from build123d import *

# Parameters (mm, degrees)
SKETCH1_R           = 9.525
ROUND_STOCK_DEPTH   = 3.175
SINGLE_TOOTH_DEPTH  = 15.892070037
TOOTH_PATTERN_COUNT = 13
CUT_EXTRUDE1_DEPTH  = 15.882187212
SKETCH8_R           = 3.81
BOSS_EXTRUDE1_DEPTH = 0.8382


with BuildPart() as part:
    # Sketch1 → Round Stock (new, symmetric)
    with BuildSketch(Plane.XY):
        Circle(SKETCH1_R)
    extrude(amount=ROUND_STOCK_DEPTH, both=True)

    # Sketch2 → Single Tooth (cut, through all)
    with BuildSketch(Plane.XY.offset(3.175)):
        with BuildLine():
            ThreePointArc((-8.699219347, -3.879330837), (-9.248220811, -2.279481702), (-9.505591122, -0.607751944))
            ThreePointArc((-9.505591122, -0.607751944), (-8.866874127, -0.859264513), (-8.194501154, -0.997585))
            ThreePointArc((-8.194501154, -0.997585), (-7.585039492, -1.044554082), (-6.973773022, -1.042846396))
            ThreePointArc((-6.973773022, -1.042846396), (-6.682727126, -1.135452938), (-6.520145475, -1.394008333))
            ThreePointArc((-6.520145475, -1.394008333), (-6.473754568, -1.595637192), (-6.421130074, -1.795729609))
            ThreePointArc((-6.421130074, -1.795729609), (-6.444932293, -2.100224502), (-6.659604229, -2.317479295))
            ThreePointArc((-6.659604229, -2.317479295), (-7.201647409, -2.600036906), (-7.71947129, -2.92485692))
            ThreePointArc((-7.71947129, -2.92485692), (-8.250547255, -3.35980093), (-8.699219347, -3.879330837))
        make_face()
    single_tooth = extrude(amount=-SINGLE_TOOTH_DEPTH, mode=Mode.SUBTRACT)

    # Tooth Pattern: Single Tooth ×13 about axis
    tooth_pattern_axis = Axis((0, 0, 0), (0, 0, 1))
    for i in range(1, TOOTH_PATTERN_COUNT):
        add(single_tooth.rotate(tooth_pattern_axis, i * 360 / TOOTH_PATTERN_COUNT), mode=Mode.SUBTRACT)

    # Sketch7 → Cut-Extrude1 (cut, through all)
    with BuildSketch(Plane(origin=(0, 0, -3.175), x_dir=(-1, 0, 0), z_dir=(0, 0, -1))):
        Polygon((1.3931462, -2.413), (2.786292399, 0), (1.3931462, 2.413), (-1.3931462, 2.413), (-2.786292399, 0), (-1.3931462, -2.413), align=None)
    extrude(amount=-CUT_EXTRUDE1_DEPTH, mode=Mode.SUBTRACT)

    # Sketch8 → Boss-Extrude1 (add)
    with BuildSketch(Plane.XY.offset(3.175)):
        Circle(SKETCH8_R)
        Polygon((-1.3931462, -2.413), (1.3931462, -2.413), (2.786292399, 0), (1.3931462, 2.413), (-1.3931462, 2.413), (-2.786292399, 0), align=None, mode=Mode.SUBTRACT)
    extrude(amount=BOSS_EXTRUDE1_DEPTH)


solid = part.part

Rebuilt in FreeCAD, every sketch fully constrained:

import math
import FreeCAD as App
import Part
import Sketcher
from FreeCAD import Vector
Q = App.Units.Quantity

doc = App.newDocument("Part")
body = doc.addObject("PartDesign::Body", "Body")

# Sketch on XY plane
sketch1 = body.newObject("Sketcher::SketchObject", "Sketch")
sketch1.AttachmentSupport = (doc.getObject("XY_Plane"), [""])
sketch1.MapMode = "FlatFace"
sketch1.addGeometry(Part.Circle(Vector(0, 0, 0), Vector(0, 0, 1), 9.525), False)
sketch1.addConstraint([
    Sketcher.Constraint("Coincident", 0, 3, -1, 1),
    Sketcher.Constraint("Diameter", 0, Q("0.75 in")),
])
pad1 = body.newObject("PartDesign::Pad", "Pad")
pad1.Profile = sketch1
pad1.Length = Q("0.25 in")
pad1.Midplane = True

# Sketch on XY plane
sketch2 = body.newObject("Sketcher::SketchObject", "Sketch001")
sketch2.AttachmentSupport = (doc.getObject("XY_Plane"), [""])
sketch2.MapMode = "FlatFace"
sketch2.AttachmentOffset = App.Placement(Vector(0, 0, 0.125 * 25.4), App.Rotation())
sketch2.addGeometry([
    Part.ArcOfCircle(Part.Circle(Vector(0, 0, 0), Vector(0, 0, 1), 9.525), math.radians(-176.341702), math.radians(-155.965991)),  # 0
    Part.ArcOfCircle(Part.Circle(Vector(-5.466058, -6.218023, 0), Vector(0, 0, 1), 3.99034), math.radians(124.382653), math.radians(144.120084)),  # 1
    Part.ArcOfCircle(Part.Circle(Vector(-3.387601, -9.255505, 0), Vector(0, 0, 1), 7.670867), math.radians(115.248771), math.radians(124.382653)),  # 2
    Part.ArcOfCircle(Part.Circle(Vector(-6.849205, -1.915445, 0), Vector(0, 0, 1), 0.4445), math.radians(-64.751229), math.radians(15.624151)),  # 3
    Part.ArcOfCircle(Part.Circle(Vector(-0.000001, 0, 0), Vector(0, 0, 1), 6.667499), math.radians(-167.931843), math.radians(-164.375849)),  # 4
    Part.ArcOfCircle(Part.Circle(Vector(-6.954822, -1.486942, 0), Vector(0, 0, 1), 0.4445), math.radians(12.068157), math.radians(92.443537)),  # 5
    Part.ArcOfCircle(Part.Circle(Vector(-7.300819, 6.621046, 0), Vector(0, 0, 1), 7.670868), math.radians(-96.690345), math.radians(-87.556464)),  # 6
    Part.ArcOfCircle(Part.Circle(Vector(-7.729613, 2.965582, 0), Vector(0, 0, 1), 3.99034), math.radians(-116.427776), math.radians(-96.690345)),  # 7
], False)
sketch2.addConstraint([
    Sketcher.Constraint("Coincident", 0, 2, 1, 2),
    Sketcher.Constraint("Tangent", 1, 1, 2, 2),
    Sketcher.Constraint("Tangent", 2, 1, 3, 1),
    Sketcher.Constraint("Tangent", 3, 2, 4, 2),
    Sketcher.Constraint("Tangent", 4, 1, 5, 1),
    Sketcher.Constraint("Tangent", 5, 2, 6, 2),
    Sketcher.Constraint("Tangent", 6, 1, 7, 2),
    Sketcher.Constraint("Coincident", 7, 1, 0, 1),
    Sketcher.Constraint("Coincident", 0, 3, -1, 1),
    Sketcher.Constraint("Coincident", 4, 3, -1, 1),
    Sketcher.Constraint("Equal", 3, 5),
    Sketcher.Constraint("Equal", 2, 6),
    Sketcher.Constraint("Equal", 1, 7),
    Sketcher.Constraint("Radius", 0, Q("0.375 in")),
    Sketcher.Constraint("Radius", 1, Q("0.1571 in")),
    Sketcher.Constraint("Radius", 3, Q("0.0175 in")),
    Sketcher.Constraint("Radius", 4, Q("0.2625 in")),
    Sketcher.Constraint("Radius", 2, 7.670867),
    Sketcher.Constraint("DistanceX", 0, 2, 2, 1, Q("0.0802998 in")),
    Sketcher.Constraint("DistanceX", 2, 3, -1, 1, 3.387601),
    Sketcher.Constraint("DistanceX", 6, 1, -1, 1, 8.194501),
    Sketcher.Constraint("DistanceY", 0, 2, 3, 2, 2.083601),
    Sketcher.Constraint("DistanceY", 3, 3, 5, 2, 0.872599),
    Sketcher.Constraint("DistanceX", 6, 3, -1, 1, 7.300819),
])
pocket1 = body.newObject("PartDesign::Pocket", "Pocket")
pocket1.Profile = sketch2
pocket1.Type = "ThroughAll"
doc.recompute()

polarpattern = body.newObject("PartDesign::PolarPattern", "PolarPattern")
polarpattern.Originals = [pocket1]
polarpattern.Axis = (doc.getObject("Z_Axis"), [""])
polarpattern.Angle = 360
polarpattern.Occurrences = 13
body.Tip = polarpattern

# Sketch on XY plane
sketch3 = body.newObject("Sketcher::SketchObject", "Sketch002")
sketch3.AttachmentSupport = (doc.getObject("XY_Plane"), [""])
sketch3.MapMode = "FlatFace"
sketch3.AttachmentOffset = App.Placement(Vector(0, 0, -0.125 * 25.4), App.Rotation())
sketch3.addGeometry([
    Part.LineSegment(Vector(-1.393146, -2.413, 0), Vector(-2.786292, 0, 0)),  # 0
    Part.LineSegment(Vector(-2.786292, 0, 0), Vector(-1.393146, 2.413, 0)),  # 1
    Part.LineSegment(Vector(-1.393146, 2.413, 0), Vector(1.393146, 2.413, 0)),  # 2
    Part.LineSegment(Vector(1.393146, 2.413, 0), Vector(2.786292, 0, 0)),  # 3
    Part.LineSegment(Vector(2.786292, 0, 0), Vector(1.393146, -2.413, 0)),  # 4
    Part.LineSegment(Vector(1.393146, -2.413, 0), Vector(-1.393146, -2.413, 0)),  # 5
], False)
sketch3.addConstraint([
    Sketcher.Constraint("Coincident", 0, 2, 1, 1),
    Sketcher.Constraint("Coincident", 1, 2, 2, 1),
    Sketcher.Constraint("Coincident", 2, 2, 3, 1),
    Sketcher.Constraint("Coincident", 3, 2, 4, 1),
    Sketcher.Constraint("Coincident", 4, 2, 5, 1),
    Sketcher.Constraint("Coincident", 5, 2, 0, 1),
    Sketcher.Constraint("Horizontal", 2),
    Sketcher.Constraint("Horizontal", 5),
    Sketcher.Constraint("Symmetric", 0, 2, 3, 2, -1, 1),
    Sketcher.Constraint("Symmetric", 1, 2, 4, 2, -1, 1),
    Sketcher.Constraint("PointOnObject", 0, 2, -1),
    Sketcher.Constraint("Parallel", 0, 3),
    Sketcher.Constraint("Vertical", 2, 2, 4, 2),
    Sketcher.Constraint("Angle", 0, Q("120 deg")),
    Sketcher.Constraint("DistanceY", 4, 2, 2, 2, Q("0.19 in")),
    Sketcher.Constraint("DistanceX", 2, 1, 2, 2, 2.786292),
])
pocket2 = body.newObject("PartDesign::Pocket", "Pocket001")
pocket2.Profile = sketch3
pocket2.Type = "ThroughAll"
pocket2.Reversed = True

# Sketch on XY plane
sketch4 = body.newObject("Sketcher::SketchObject", "Sketch003")
sketch4.AttachmentSupport = (doc.getObject("XY_Plane"), [""])
sketch4.MapMode = "FlatFace"
sketch4.AttachmentOffset = App.Placement(Vector(0, 0, 0.125 * 25.4), App.Rotation())
sketch4.addGeometry([
    Part.Circle(Vector(0, 0, 0), Vector(0, 0, 1), 3.81),  # 0
    Part.LineSegment(Vector(1.393146, -2.413, 0), Vector(-1.393146, -2.413, 0)),  # 1
    Part.LineSegment(Vector(-1.393146, -2.413, 0), Vector(-2.786292, 0, 0)),  # 2
    Part.LineSegment(Vector(-2.786292, 0, 0), Vector(-1.393146, 2.413, 0)),  # 3
    Part.LineSegment(Vector(-1.393146, 2.413, 0), Vector(1.393146, 2.413, 0)),  # 4
    Part.LineSegment(Vector(1.393146, 2.413, 0), Vector(2.786292, 0, 0)),  # 5
    Part.LineSegment(Vector(2.786292, 0, 0), Vector(1.393146, -2.413, 0)),  # 6
], False)
sketch4.addConstraint([
    Sketcher.Constraint("Coincident", 1, 2, 2, 1),
    Sketcher.Constraint("Coincident", 2, 2, 3, 1),
    Sketcher.Constraint("Coincident", 3, 2, 4, 1),
    Sketcher.Constraint("Coincident", 4, 2, 5, 1),
    Sketcher.Constraint("Coincident", 5, 2, 6, 1),
    Sketcher.Constraint("Coincident", 6, 2, 1, 1),
    Sketcher.Constraint("Horizontal", 1),
    Sketcher.Constraint("Horizontal", 4),
    Sketcher.Constraint("Coincident", 0, 3, -1, 1),
    Sketcher.Constraint("Symmetric", 1, 2, 4, 2, -1, 1),
    Sketcher.Constraint("Symmetric", 2, 2, 5, 2, -1, 1),
    Sketcher.Constraint("PointOnObject", 2, 2, -1),
    Sketcher.Constraint("Parallel", 3, 6),
    Sketcher.Constraint("Vertical", 1, 2, 3, 2),
    Sketcher.Constraint("Diameter", 0, Q("0.3 in")),
    Sketcher.Constraint("Angle", 2, Q("120 deg")),
    Sketcher.Constraint("DistanceY", 1, 2, 3, 2, Q("0.19 in")),
    Sketcher.Constraint("DistanceX", 1, 2, 1, 1, 2.786292),
])
pad2 = body.newObject("PartDesign::Pad", "Pad001")
pad2.Profile = sketch4
pad2.Length = Q("0.033 in")

doc.recompute()
